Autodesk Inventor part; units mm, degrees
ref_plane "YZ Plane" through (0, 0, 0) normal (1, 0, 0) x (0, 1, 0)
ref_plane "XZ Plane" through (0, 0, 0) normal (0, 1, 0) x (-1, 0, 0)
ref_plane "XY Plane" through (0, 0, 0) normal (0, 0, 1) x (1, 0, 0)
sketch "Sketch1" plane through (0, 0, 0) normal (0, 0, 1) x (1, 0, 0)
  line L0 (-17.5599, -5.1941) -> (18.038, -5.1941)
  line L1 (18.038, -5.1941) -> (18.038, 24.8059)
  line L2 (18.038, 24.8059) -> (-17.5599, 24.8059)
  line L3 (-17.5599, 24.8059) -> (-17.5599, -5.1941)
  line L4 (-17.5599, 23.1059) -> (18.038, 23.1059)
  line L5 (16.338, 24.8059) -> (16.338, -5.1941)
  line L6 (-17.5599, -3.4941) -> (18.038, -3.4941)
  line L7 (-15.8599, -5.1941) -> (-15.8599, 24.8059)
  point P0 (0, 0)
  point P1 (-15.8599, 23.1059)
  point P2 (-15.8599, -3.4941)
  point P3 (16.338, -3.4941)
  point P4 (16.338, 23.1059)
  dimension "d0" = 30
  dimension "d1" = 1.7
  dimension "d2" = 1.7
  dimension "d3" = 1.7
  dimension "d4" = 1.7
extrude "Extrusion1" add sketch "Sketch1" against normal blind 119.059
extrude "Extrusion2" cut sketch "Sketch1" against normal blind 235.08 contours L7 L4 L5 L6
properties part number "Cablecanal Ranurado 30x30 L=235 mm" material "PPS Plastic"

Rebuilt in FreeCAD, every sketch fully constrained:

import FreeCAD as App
import Part
import Sketcher
Q = App.Units.Quantity

doc = App.newDocument("Part")
params = doc.addObject("Spreadsheet::Sheet", "Params")
for row, (alias, value) in enumerate([
    ("sketch1_height", "30 mm"),
    ("pad1_length", "119.059 mm"),
    ("sketch2_height", "26.6 mm"),
    ("pocket1_length", "235.08 mm"),
], start=1):
    params.set(f"A{row}", alias)
    params.set(f"B{row}", "=" + value)
    params.setAlias(f"B{row}", alias)

body = doc.addObject("PartDesign::Body", "Body")

sketch1 = body.newObject("Sketcher::SketchObject", "Sketch")
sketch1.AttachmentSupport = (doc.getObject("XY_Plane"), [""])
sketch1.MapMode = "FlatFace"
sketch1.addGeometry([
    Part.LineSegment(App.Vector(-18, -5, 0), App.Vector(18, -5, 0)),
    Part.LineSegment(App.Vector(18, -5, 0), App.Vector(18, 25, 0)),
    Part.LineSegment(App.Vector(18, 25, 0), App.Vector(-18, 25, 0)),
    Part.LineSegment(App.Vector(-18, 25, 0), App.Vector(-18, -5, 0)),
], False)
sketch1.addConstraint([
    Sketcher.Constraint("Coincident", 0, 2, 1, 1),
    Sketcher.Constraint("Coincident", 1, 2, 2, 1),
    Sketcher.Constraint("Coincident", 2, 2, 3, 1),
    Sketcher.Constraint("Coincident", 3, 2, 0, 1),
    Sketcher.Constraint("Horizontal", 0),
    Sketcher.Constraint("Vertical", 1),
    Sketcher.Constraint("Horizontal", 2),
    Sketcher.Constraint("Vertical", 3),
    Sketcher.Constraint("DistanceY", 1, 1, 1, 2, Q("30 mm")),
    Sketcher.Constraint("DistanceX", 0, 1, 0, 2, Q("35.598 mm")),
    Sketcher.Constraint("DistanceX", 2, 2, -1, 1, Q("17.56 mm")),
    Sketcher.Constraint("DistanceY", 0, 2, -1, 1, Q("5.194 mm")),
])
sketch1.setExpression("Constraints[8]", "Params.sketch1_height")
pad1 = body.newObject("PartDesign::Pad", "Pad")
pad1.Profile = sketch1
pad1.setExpression("Length", "Params.pad1_length")
pad1.Reversed = True

sketch2 = body.newObject("Sketcher::SketchObject", "Sketch001")
sketch2.AttachmentSupport = (doc.getObject("XY_Plane"), [""])
sketch2.MapMode = "FlatFace"
sketch2.addGeometry([
    Part.LineSegment(App.Vector(-16, 23, 0), App.Vector(-16, -3, 0)),
    Part.LineSegment(App.Vector(-16, -3, 0), App.Vector(16, -3, 0)),
    Part.LineSegment(App.Vector(16, -3, 0), App.Vector(16, 23, 0)),
    Part.LineSegment(App.Vector(16, 23, 0), App.Vector(-16, 23, 0)),
], False)
sketch2.addConstraint([
    Sketcher.Constraint("Coincident", 0, 2, 1, 1),
    Sketcher.Constraint("Coincident", 1, 2, 2, 1),
    Sketcher.Constraint("Coincident", 2, 2, 3, 1),
    Sketcher.Constraint("Coincident", 3, 2, 0, 1),
    Sketcher.Constraint("Vertical", 0),
    Sketcher.Constraint("Horizontal", 1),
    Sketcher.Constraint("Vertical", 2),
    Sketcher.Constraint("Horizontal", 3),
    Sketcher.Constraint("DistanceY", 0, 2, 0, 1, Q("26.6 mm")),
    Sketcher.Constraint("DistanceX", 1, 1, 1, 2, Q("32.198 mm")),
    Sketcher.Constraint("DistanceX", 0, 2, -1, 1, Q("15.86 mm")),
    Sketcher.Constraint("DistanceY", 0, 2, -1, 1, Q("3.494 mm")),
])
sketch2.setExpression("Constraints[8]", "Params.sketch2_height")
pocket1 = body.newObject("PartDesign::Pocket", "Pocket")
pocket1.Profile = sketch2
pocket1.setExpression("Length", "Params.pocket1_length")

doc.recompute()
